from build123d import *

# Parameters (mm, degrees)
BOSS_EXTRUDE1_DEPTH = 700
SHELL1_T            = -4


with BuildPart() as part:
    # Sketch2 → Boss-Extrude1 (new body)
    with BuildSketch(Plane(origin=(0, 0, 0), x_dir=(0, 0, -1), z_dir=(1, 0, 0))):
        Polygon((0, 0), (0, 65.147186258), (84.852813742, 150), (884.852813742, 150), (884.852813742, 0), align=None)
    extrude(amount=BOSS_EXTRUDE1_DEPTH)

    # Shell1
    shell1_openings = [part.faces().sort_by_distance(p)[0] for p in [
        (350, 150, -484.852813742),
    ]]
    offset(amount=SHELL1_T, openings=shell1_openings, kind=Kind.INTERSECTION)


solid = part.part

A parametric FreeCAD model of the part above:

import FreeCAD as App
import Part
import Sketcher
from FreeCAD import Vector
Q = App.Units.Quantity


def faces_at(feature, points):
    """Names of the faces that lie closest to the given points."""
    faces = feature.Shape.Faces
    near = lambda p: min(range(len(faces)), key=lambda i: faces[i].distToShape(Part.Vertex(*p))[0])
    return sorted({f"Face{near(p) + 1}" for p in points})

doc = App.newDocument("Part")
body = doc.addObject("PartDesign::Body", "Body")

# Sketch on YZ plane
sketch1 = body.newObject("Sketcher::SketchObject", "Sketch")
sketch1.AttachmentSupport = (doc.getObject("YZ_Plane"), [""])
sketch1.MapMode = "FlatFace"
sketch1.addGeometry(Part.LineSegment(Vector(65, 0, 0), Vector(0, 0, 0)), False)
sketch1.addGeometry(Part.LineSegment(Vector(0, 0, 0), Vector(0, -885, 0)), False)
sketch1.addGeometry(Part.LineSegment(Vector(0, -885, 0), Vector(150, -885, 0)), False)
sketch1.addGeometry(Part.LineSegment(Vector(150, -885, 0), Vector(150, -85, 0)), False)
sketch1.addGeometry(Part.LineSegment(Vector(150, -85, 0), Vector(65, 0, 0)), False)
sketch1.addConstraint(Sketcher.Constraint("Coincident", 0, 2, 1, 1))
sketch1.addConstraint(Sketcher.Constraint("Coincident", 1, 2, 2, 1))
sketch1.addConstraint(Sketcher.Constraint("Coincident", 2, 2, 3, 1))
sketch1.addConstraint(Sketcher.Constraint("Coincident", 3, 2, 4, 1))
sketch1.addConstraint(Sketcher.Constraint("Coincident", 4, 2, 0, 1))
sketch1.addConstraint(Sketcher.Constraint("Horizontal", 0))
sketch1.addConstraint(Sketcher.Constraint("Vertical", 1))
sketch1.addConstraint(Sketcher.Constraint("Horizontal", 2))
sketch1.addConstraint(Sketcher.Constraint("Vertical", 3))
sketch1.addConstraint(Sketcher.Constraint("Coincident", 0, 2, -1, 1))
sketch1.addConstraint(Sketcher.Constraint("DistanceX", 2, 1, 2, 2, Q("150 mm")))
sketch1.addConstraint(Sketcher.Constraint("DistanceY", 3, 1, 3, 2, Q("800 mm")))
sketch1.addConstraint(Sketcher.Constraint("Angle", 4, Q("135 deg")))
sketch1.addConstraint(Sketcher.Constraint("Distance", 4, Q("120 mm")))
pad1 = body.newObject("PartDesign::Pad", "Pad")
pad1.Profile = sketch1
pad1.Length = 700
doc.recompute()

thickness = body.newObject("PartDesign::Thickness", "Thickness")
thickness.Base = (pad1, faces_at(pad1, [(350, 150, -484.853)]))
thickness.Value = 4
thickness.Reversed = True
thickness.Join = "Intersection"

doc.recompute()
